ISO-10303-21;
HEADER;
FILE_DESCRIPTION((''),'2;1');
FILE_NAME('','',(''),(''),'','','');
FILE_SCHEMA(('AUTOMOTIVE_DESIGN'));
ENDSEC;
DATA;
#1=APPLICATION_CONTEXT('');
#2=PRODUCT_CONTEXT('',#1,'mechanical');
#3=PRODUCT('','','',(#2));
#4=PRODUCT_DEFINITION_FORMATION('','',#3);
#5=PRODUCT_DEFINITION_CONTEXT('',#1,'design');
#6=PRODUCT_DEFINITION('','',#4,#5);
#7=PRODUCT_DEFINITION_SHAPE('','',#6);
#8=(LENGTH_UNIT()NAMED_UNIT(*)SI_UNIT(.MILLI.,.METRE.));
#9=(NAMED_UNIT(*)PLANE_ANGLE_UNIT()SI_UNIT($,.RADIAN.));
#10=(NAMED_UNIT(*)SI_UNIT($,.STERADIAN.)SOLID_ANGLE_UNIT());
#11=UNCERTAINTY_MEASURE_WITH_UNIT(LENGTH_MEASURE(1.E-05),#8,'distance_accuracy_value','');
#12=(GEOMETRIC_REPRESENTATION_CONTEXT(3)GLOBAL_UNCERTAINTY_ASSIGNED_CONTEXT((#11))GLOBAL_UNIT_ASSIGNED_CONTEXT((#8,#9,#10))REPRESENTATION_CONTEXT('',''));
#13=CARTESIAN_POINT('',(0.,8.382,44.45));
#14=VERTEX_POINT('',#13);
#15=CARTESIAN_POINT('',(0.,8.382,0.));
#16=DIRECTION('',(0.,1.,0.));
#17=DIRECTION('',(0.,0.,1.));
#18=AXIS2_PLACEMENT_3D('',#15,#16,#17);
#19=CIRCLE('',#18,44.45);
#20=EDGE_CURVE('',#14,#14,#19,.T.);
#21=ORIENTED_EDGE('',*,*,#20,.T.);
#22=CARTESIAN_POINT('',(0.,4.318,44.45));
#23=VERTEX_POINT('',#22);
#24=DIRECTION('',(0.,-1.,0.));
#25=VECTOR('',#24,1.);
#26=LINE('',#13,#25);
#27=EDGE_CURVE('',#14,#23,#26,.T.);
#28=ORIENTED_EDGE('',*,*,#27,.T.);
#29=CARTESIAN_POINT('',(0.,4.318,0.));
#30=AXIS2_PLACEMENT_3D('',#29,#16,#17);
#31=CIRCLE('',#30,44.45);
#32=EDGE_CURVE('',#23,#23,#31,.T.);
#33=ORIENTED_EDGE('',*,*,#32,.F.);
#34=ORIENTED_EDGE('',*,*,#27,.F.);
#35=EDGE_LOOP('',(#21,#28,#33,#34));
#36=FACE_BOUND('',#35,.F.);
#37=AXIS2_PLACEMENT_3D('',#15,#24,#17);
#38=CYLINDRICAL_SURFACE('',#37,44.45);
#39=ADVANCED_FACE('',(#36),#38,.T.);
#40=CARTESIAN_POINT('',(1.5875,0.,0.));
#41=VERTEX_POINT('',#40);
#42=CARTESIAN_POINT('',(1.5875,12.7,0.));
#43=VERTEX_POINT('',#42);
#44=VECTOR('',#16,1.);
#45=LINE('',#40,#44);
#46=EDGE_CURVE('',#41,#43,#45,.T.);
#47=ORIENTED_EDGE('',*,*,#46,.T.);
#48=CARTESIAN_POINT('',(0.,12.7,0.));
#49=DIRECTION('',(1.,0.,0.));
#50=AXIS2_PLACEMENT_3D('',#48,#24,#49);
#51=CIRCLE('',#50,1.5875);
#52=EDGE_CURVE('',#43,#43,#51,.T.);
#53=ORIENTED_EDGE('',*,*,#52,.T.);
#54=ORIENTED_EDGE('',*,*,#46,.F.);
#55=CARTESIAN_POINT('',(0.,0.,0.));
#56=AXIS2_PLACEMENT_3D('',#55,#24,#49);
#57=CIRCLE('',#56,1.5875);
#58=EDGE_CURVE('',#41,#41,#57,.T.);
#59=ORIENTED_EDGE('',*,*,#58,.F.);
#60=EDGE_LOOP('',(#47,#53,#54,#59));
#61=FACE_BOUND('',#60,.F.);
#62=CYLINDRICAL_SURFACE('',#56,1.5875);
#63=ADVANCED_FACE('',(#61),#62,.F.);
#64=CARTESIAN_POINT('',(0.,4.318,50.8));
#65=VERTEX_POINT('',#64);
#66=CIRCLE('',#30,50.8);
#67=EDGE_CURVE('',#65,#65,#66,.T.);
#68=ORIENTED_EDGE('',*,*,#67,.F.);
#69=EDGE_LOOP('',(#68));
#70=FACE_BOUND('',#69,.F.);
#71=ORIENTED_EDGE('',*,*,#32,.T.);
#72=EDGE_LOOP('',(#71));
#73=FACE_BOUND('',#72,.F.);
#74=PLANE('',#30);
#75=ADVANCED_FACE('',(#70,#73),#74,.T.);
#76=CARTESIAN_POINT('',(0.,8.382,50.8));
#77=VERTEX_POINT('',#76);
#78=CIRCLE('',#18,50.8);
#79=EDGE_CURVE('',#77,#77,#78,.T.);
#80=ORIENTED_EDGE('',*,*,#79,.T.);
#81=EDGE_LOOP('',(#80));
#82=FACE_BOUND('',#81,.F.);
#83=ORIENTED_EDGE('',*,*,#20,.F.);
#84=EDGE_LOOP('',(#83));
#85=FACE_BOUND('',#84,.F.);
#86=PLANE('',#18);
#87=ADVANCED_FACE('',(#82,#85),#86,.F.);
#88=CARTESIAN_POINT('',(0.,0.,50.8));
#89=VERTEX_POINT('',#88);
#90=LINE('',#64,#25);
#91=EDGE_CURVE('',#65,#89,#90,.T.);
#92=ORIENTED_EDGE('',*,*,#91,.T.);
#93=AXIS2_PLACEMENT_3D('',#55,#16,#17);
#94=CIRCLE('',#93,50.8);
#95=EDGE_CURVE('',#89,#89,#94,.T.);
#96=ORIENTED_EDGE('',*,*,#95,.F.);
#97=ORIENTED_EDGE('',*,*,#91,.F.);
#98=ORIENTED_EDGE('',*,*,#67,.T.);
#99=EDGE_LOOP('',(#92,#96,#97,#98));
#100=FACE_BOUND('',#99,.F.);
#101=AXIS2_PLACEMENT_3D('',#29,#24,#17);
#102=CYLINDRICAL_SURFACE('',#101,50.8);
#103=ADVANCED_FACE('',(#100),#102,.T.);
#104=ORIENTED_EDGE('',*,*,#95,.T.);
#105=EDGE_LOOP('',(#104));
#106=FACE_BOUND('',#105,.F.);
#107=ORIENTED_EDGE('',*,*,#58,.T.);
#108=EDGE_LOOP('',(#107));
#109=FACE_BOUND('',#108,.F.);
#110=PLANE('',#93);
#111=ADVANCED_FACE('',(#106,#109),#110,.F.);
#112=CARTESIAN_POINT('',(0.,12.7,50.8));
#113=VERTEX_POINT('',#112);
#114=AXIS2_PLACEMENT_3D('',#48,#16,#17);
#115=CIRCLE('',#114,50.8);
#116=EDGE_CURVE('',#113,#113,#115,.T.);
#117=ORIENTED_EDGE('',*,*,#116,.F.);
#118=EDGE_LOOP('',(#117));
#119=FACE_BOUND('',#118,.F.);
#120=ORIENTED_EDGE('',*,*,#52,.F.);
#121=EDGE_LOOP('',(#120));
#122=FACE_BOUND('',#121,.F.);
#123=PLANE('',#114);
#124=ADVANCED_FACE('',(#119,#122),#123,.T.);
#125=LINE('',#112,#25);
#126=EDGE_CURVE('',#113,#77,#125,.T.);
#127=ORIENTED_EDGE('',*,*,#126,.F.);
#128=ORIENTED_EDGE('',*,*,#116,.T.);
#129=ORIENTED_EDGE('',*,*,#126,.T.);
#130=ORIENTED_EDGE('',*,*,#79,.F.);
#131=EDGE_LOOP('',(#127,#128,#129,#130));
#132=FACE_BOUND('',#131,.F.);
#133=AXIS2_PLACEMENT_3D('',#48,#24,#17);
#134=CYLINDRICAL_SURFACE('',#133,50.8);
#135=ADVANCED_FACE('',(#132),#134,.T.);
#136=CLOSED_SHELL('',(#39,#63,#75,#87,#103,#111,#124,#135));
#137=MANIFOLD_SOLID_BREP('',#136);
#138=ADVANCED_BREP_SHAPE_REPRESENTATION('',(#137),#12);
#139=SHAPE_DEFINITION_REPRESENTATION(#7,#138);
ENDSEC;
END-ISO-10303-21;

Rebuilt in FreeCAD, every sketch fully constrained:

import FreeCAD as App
import Part
import Sketcher
from FreeCAD import Vector
Q = App.Units.Quantity

doc = App.newDocument("Part")
body = doc.addObject("PartDesign::Body", "Body")

sketch1 = body.newObject("Sketcher::SketchObject", "Sketch")
sketch1.AttachmentSupport = (doc.getObject("YZ_Plane"), [""])
sketch1.MapMode = "FlatFace"
sketch1.addGeometry([
    Part.LineSegment(Vector(0, 50.8, 0), Vector(0, 0, 0)),
    Part.LineSegment(Vector(0, 0, 0), Vector(12.7, 0, 0)),
    Part.LineSegment(Vector(12.7, 0, 0), Vector(12.7, 50.8, 0)),
    Part.LineSegment(Vector(12.7, 50.8, 0), Vector(8.4, 50.8, 0)),
    Part.LineSegment(Vector(8.4, 50.8, 0), Vector(8.4, 44.5, 0)),
    Part.LineSegment(Vector(8.4, 44.5, 0), Vector(4.3, 44.5, 0)),
    Part.LineSegment(Vector(4.3, 44.5, 0), Vector(4.3, 50.8, 0)),
    Part.LineSegment(Vector(4.3, 50.8, 0), Vector(0, 50.8, 0)),
], False)
sketch1.addConstraint([
    Sketcher.Constraint("Coincident", 0, 2, 1, 1),
    Sketcher.Constraint("Coincident", 1, 2, 2, 1),
    Sketcher.Constraint("Coincident", 2, 2, 3, 1),
    Sketcher.Constraint("Coincident", 3, 2, 4, 1),
    Sketcher.Constraint("Coincident", 4, 2, 5, 1),
    Sketcher.Constraint("Coincident", 5, 2, 6, 1),
    Sketcher.Constraint("Coincident", 6, 2, 7, 1),
    Sketcher.Constraint("Coincident", 7, 2, 0, 1),
    Sketcher.Constraint("Vertical", 0),
    Sketcher.Constraint("Horizontal", 1),
    Sketcher.Constraint("Vertical", 2),
    Sketcher.Constraint("Horizontal", 3),
    Sketcher.Constraint("Vertical", 4),
    Sketcher.Constraint("Horizontal", 5),
    Sketcher.Constraint("Vertical", 6),
    Sketcher.Constraint("Horizontal", 7),
    Sketcher.Constraint("Coincident", 0, 2, -1, 1),
    Sketcher.Constraint("Horizontal", 3, 2, 6, 2),
    Sketcher.Constraint("Equal", 3, 7),
    Sketcher.Constraint("DistanceY", 0, 2, 0, 1, Q("2 in")),
    Sketcher.Constraint("DistanceX", 1, 1, 1, 2, Q("0.5 in")),
    Sketcher.Constraint("DistanceX", 3, 2, 3, 1, Q("0.17 in")),
    Sketcher.Constraint("DistanceY", 4, 2, 4, 1, Q("0.25 in")),
])
revolution = body.newObject("PartDesign::Revolution", "Revolution")
revolution.Profile = sketch1
revolution.ReferenceAxis = (sketch1, ["H_Axis"])
revolution.Angle = 360

sketch2 = body.newObject("Sketcher::SketchObject", "Sketch001")
sketch2.AttachmentSupport = (doc.getObject("XZ_Plane"), [""])
sketch2.MapMode = "FlatFace"
sketch2.addGeometry(Part.Circle(Vector(0, 0, 0), Vector(0, 0, 1), 1.6), False)
sketch2.addConstraint([
    Sketcher.Constraint("Coincident", 0, 3, -1, 1),
    Sketcher.Constraint("Diameter", 0, Q("0.125 in")),
])
pocket1 = body.newObject("PartDesign::Pocket", "Pocket")
pocket1.Profile = sketch2
pocket1.Type = "ThroughAll"

doc.recompute()
